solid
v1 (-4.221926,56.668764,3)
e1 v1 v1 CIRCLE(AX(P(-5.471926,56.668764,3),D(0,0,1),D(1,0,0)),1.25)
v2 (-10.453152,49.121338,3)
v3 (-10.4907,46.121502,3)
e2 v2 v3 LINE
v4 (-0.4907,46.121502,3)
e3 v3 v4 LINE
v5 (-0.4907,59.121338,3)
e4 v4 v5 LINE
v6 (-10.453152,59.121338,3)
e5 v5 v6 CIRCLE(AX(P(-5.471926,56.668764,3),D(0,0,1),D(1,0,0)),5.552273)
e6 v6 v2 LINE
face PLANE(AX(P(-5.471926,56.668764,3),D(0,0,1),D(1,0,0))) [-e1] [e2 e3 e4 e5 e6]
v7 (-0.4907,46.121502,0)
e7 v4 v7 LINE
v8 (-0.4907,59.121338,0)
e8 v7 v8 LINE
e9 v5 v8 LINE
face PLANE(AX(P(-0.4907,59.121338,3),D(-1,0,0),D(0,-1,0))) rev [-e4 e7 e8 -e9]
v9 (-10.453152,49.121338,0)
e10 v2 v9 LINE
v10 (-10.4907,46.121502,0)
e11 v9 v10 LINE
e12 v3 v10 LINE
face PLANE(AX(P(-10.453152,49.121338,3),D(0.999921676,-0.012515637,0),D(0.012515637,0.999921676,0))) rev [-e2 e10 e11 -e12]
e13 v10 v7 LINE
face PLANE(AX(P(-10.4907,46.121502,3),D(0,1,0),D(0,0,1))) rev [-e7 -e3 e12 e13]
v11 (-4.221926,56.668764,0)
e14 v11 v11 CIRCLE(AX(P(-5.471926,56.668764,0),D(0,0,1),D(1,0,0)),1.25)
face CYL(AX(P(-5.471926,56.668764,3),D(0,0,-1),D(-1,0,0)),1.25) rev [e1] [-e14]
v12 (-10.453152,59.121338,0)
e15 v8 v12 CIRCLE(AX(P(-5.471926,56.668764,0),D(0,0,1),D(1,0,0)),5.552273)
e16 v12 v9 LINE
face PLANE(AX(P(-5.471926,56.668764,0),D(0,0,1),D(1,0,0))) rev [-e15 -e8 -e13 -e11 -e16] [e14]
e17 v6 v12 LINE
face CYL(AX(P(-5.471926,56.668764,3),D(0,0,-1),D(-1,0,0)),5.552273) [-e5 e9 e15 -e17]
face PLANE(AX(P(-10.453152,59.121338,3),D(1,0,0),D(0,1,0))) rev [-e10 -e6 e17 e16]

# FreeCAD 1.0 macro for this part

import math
import FreeCAD as App
import Part
import Sketcher

V = App.Vector
Q = App.Units.Quantity

doc = App.newDocument("Part")
body = doc.addObject("PartDesign::Body", "Body")

# Sketch on XY plane
sketch1 = body.newObject("Sketcher::SketchObject", "Sketch")
sketch1.AttachmentSupport = (doc.getObject("XY_Plane"), [""])
sketch1.MapMode = "FlatFace"
sketch1.addGeometry([
    Part.LineSegment(V(-10.453152, 49.121338, 0), V(-10.4907, 46.121502, 0)),  # 0
    Part.LineSegment(V(-10.4907, 46.121502, 0), V(-0.4907, 46.121502, 0)),  # 1
    Part.LineSegment(V(-0.4907, 46.121502, 0), V(-0.4907, 59.121338, 0)),  # 2
    Part.ArcOfCircle(Part.Circle(V(-5.471926, 56.668764, 0), V(0, 0, 1), 5.552273), math.radians(26.213956), math.radians(153.786044)),  # 3
    Part.LineSegment(V(-10.453152, 59.121338, 0), V(-10.453152, 49.121338, 0)),  # 4
    Part.Circle(V(-5.471926, 56.668764, 0), V(0, 0, 1), 1.25),  # 5
], False)
sketch1.addConstraint([
    Sketcher.Constraint("Coincident", 0, 2, 1, 1),
    Sketcher.Constraint("Coincident", 1, 2, 2, 1),
    Sketcher.Constraint("Coincident", 2, 2, 3, 1),
    Sketcher.Constraint("Coincident", 3, 2, 4, 1),
    Sketcher.Constraint("Coincident", 4, 2, 0, 1),
    Sketcher.Constraint("Horizontal", 1),
    Sketcher.Constraint("Vertical", 2),
    Sketcher.Constraint("Vertical", 4),
    Sketcher.Constraint("Coincident", 5, 3, 3, 3),
    Sketcher.Constraint("Horizontal", 2, 2, 3, 2),
    Sketcher.Constraint("Equal", 1, 4),
    Sketcher.Constraint("Diameter", 5, Q("2.5 mm")),
    Sketcher.Constraint("DistanceX", 1, 1, 1, 2, Q("10 mm")),
    Sketcher.Constraint("Radius", 3, Q("5.552273 mm")),
    Sketcher.Constraint("DistanceX", 0, 2, -1, 1, Q("10.4907 mm")),
    Sketcher.Constraint("Distance", 0, Q("3.000071 mm")),
    Sketcher.Constraint("DistanceY", 2, 1, 2, 2, Q("12.999836 mm")),
    Sketcher.Constraint("DistanceY", -1, 1, 2, 2, Q("59.121338 mm")),
])
pad1 = body.newObject("PartDesign::Pad", "Pad")
pad1.Profile = sketch1
pad1.Length = 3

doc.recompute()
